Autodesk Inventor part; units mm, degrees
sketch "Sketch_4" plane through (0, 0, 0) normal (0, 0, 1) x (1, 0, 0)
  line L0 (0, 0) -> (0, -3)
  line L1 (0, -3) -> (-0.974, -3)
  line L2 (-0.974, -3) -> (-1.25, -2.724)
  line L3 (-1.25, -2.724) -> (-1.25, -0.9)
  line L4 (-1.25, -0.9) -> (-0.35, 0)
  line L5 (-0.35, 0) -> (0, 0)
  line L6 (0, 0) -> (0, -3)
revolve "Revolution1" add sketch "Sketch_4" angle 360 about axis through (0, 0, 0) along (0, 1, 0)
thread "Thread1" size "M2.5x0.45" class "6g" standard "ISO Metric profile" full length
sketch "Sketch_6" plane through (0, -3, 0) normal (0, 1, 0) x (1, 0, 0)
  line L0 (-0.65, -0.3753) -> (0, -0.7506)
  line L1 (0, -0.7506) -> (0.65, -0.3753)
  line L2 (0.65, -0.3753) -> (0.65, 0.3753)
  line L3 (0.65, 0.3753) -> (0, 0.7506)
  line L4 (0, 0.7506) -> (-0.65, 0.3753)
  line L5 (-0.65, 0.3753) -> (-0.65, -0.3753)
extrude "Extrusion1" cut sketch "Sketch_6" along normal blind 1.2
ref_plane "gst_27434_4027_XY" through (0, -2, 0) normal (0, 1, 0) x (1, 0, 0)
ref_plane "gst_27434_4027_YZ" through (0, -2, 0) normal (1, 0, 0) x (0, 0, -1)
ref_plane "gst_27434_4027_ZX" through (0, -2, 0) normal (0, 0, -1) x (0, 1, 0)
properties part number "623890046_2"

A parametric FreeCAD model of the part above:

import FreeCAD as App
import Part
import Sketcher
from FreeCAD import Vector
Q = App.Units.Quantity


def add_polygon(sketch, points):
    """Adds a closed chain of lines whose ends are joined by coincident constraints."""
    first, n = sketch.GeometryCount, len(points)
    for a, b in zip(points, points[1:] + points[:1]):
        sketch.addGeometry(Part.LineSegment(App.Vector(*a, 0), App.Vector(*b, 0)), False)
    for i in range(n):
        sketch.addConstraint(Sketcher.Constraint("Coincident", first + i, 2, first + (i + 1) % n, 1))

doc = App.newDocument("Part")
body = doc.addObject("PartDesign::Body", "Body")

# Sketch on XY plane
sketch1 = doc.addObject("Sketcher::SketchObject", "Sketch")
body.addObject(sketch1)
sketch1.AttachmentSupport = (doc.XY_Plane, [""])
sketch1.MapMode = "FlatFace"
add_polygon(sketch1, [(0, -3), (0, 0), (-0.35, 0), (-1.25, -0.9), (-1.25, -2.72), (-0.97, -3)])  # lines 0-5
sketch1.addConstraint(Sketcher.Constraint("Vertical", 0))
sketch1.addConstraint(Sketcher.Constraint("Horizontal", 1))
sketch1.addConstraint(Sketcher.Constraint("Vertical", 3))
sketch1.addConstraint(Sketcher.Constraint("Horizontal", 5))
sketch1.addConstraint(Sketcher.Constraint("Coincident", 0, 2, -1, 1))
sketch1.addConstraint(Sketcher.Constraint("Perpendicular", 2, 4))
sketch1.addConstraint(Sketcher.Constraint("DistanceY", 0, 1, 0, 2, Q("3 mm")))
sketch1.addConstraint(Sketcher.Constraint("Angle", 2, Q("-135 deg")))
sketch1.addConstraint(Sketcher.Constraint("DistanceX", 1, 2, 1, 1, Q("0.35 mm")))
sketch1.addConstraint(Sketcher.Constraint("DistanceY", 2, 2, -1, 1, Q("0.9 mm")))
sketch1.addConstraint(Sketcher.Constraint("DistanceX", 5, 1, 5, 2, Q("0.974 mm")))
revolution = doc.addObject("PartDesign::Revolution", "Revolution")
body.addObject(revolution)
revolution.Profile = sketch1
revolution.ReferenceAxis = (sketch1, ["V_Axis"])
revolution.Angle = 360

# Sketch on XZ plane
sketch2 = doc.addObject("Sketcher::SketchObject", "Sketch001")
body.addObject(sketch2)
sketch2.AttachmentSupport = (doc.XZ_Plane, [""])
sketch2.MapMode = "FlatFace"
sketch2.AttachmentOffset = App.Placement(Vector(0, 0, 3), App.Rotation())
add_polygon(sketch2, [(-0.7, -0.4), (-0.7, 0.4), (0, 0.8), (0.7, 0.4), (0.7, -0.4), (0, -0.8)])  # lines 0-5
sketch2.addConstraint(Sketcher.Constraint("Vertical", 0))
sketch2.addConstraint(Sketcher.Constraint("Vertical", 3))
sketch2.addConstraint(Sketcher.Constraint("Symmetric", 0, 2, 3, 2, -1, 1))
sketch2.addConstraint(Sketcher.Constraint("Symmetric", 1, 2, 4, 2, -1, 1))
sketch2.addConstraint(Sketcher.Constraint("PointOnObject", 1, 2, -2))
sketch2.addConstraint(Sketcher.Constraint("Parallel", 2, 5))
sketch2.addConstraint(Sketcher.Constraint("Horizontal", 0, 2, 2, 2))
sketch2.addConstraint(Sketcher.Constraint("DistanceX", 0, 2, 2, 2, Q("1.3 mm")))
sketch2.addConstraint(Sketcher.Constraint("DistanceY", 0, 1, 0, 2, Q("0.7506 mm")))
sketch2.addConstraint(Sketcher.Constraint("DistanceY", 3, 2, 1, 2, Q("1.126 mm")))
pocket1 = doc.addObject("PartDesign::Pocket", "Pocket")
body.addObject(pocket1)
pocket1.Profile = sketch2
pocket1.Length = 1.2

doc.recompute()
